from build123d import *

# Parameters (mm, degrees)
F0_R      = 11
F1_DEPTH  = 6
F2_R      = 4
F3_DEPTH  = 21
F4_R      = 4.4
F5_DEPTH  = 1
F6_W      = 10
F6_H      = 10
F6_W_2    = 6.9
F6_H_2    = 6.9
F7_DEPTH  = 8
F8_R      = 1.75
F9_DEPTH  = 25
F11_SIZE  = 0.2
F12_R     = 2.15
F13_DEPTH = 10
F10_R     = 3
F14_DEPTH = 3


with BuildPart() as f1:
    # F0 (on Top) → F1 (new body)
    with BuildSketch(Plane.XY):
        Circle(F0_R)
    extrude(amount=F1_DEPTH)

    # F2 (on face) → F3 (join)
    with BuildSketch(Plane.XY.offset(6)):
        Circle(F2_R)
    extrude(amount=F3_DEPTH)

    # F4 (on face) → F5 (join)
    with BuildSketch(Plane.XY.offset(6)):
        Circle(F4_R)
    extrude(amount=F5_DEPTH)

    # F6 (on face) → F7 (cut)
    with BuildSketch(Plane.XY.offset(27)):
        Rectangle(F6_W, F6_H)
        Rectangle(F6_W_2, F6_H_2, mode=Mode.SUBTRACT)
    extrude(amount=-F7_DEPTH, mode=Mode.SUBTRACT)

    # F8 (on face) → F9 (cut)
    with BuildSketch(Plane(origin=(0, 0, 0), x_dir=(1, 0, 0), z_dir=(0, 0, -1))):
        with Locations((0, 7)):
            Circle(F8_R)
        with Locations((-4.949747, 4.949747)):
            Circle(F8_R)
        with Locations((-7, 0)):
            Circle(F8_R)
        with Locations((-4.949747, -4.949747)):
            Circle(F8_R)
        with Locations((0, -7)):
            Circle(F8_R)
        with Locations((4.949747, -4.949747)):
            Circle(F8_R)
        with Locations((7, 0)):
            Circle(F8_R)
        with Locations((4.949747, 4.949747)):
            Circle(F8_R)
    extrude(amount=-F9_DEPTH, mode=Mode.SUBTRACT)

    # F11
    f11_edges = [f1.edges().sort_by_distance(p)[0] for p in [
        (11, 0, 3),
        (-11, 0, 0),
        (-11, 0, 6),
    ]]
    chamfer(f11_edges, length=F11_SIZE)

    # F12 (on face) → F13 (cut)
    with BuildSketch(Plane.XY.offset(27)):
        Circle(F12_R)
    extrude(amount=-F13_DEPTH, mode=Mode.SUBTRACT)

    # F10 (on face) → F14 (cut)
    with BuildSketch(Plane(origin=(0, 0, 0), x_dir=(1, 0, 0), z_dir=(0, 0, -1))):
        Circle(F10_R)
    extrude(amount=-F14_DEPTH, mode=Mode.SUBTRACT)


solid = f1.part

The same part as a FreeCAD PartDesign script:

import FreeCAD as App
import Part
import Sketcher

V = App.Vector


def edges_at(feature, points):
    """Names of the edges that pass closest to the given points."""
    edges = feature.Shape.Edges
    near = lambda p: min(range(len(edges)), key=lambda i: edges[i].distToShape(Part.Vertex(*p))[0])
    return sorted({f"Edge{near(p) + 1}" for p in points})


def add_polygon(sketch, points):
    """Adds a closed chain of lines whose ends are joined by coincident constraints."""
    first, n = sketch.GeometryCount, len(points)
    for a, b in zip(points, points[1:] + points[:1]):
        sketch.addGeometry(Part.LineSegment(App.Vector(*a, 0), App.Vector(*b, 0)), False)
    for i in range(n):
        sketch.addConstraint(Sketcher.Constraint("Coincident", first + i, 2, first + (i + 1) % n, 1))

doc = App.newDocument("Part")
params = doc.addObject("Spreadsheet::Sheet", "Params")
for row, (alias, value) in enumerate([
    ("sketch1_diameter", "22 mm"),
    ("pad1_length", "6 mm"),
    ("sketch2_diameter", "8 mm"),
    ("pad2_length", "21 mm"),
    ("sketch3_diameter", "8.8 mm"),
    ("pad3_length", "1 mm"),
    ("sketch4_width", "10 mm"),
    ("sketch4_width2", "6.9 mm"),
    ("pocket1_length", "8 mm"),
    ("sketch5_diameter", "3.5 mm"),
    ("pocket2_length", "25 mm"),
    ("chamfer_size", "0.2 mm"),
    ("sketch6_diameter", "4.3 mm"),
    ("pocket3_length", "10 mm"),
    ("sketch7_diameter", "6 mm"),
    ("pocket4_length", "3 mm"),
], start=1):
    params.set(f"A{row}", alias)
    params.set(f"B{row}", "=" + value)
    params.setAlias(f"B{row}", alias)

body = doc.addObject("PartDesign::Body", "Body")

sketch1 = body.newObject("Sketcher::SketchObject", "Sketch")
sketch1.AttachmentSupport = (doc.getObject("XY_Plane"), [""])
sketch1.MapMode = "FlatFace"
sketch1.addGeometry(Part.Circle(V(0, 0, 0), V(0, 0, 1), 11), False)
sketch1.addConstraint([
    Sketcher.Constraint("Coincident", 0, 3, -1, 1),
    Sketcher.Constraint("Diameter", 0, 22.0),
])
sketch1.setExpression("Constraints[1]", "Params.sketch1_diameter")
pad1 = body.newObject("PartDesign::Pad", "Pad")
pad1.Profile = sketch1
pad1.setExpression("Length", "Params.pad1_length")

sketch2 = body.newObject("Sketcher::SketchObject", "Sketch001")
sketch2.AttachmentSupport = (doc.getObject("XY_Plane"), [""])
sketch2.MapMode = "FlatFace"
sketch2.AttachmentOffset = App.Placement(V(0, 0, 6), App.Rotation())
sketch2.addGeometry(Part.Circle(V(0, 0, 0), V(0, 0, 1), 4), False)
sketch2.addConstraint([
    Sketcher.Constraint("Coincident", 0, 3, -1, 1),
    Sketcher.Constraint("Diameter", 0, 8.0),
])
sketch2.setExpression("Constraints[1]", "Params.sketch2_diameter")
pad2 = body.newObject("PartDesign::Pad", "Pad001")
pad2.Profile = sketch2
pad2.setExpression("Length", "Params.pad2_length")

sketch3 = body.newObject("Sketcher::SketchObject", "Sketch002")
sketch3.AttachmentSupport = (doc.getObject("XY_Plane"), [""])
sketch3.MapMode = "FlatFace"
sketch3.AttachmentOffset = App.Placement(V(0, 0, 6), App.Rotation())
sketch3.addGeometry(Part.Circle(V(0, 0, 0), V(0, 0, 1), 4.4), False)
sketch3.addConstraint([
    Sketcher.Constraint("Coincident", 0, 3, -1, 1),
    Sketcher.Constraint("Diameter", 0, 8.8),
])
sketch3.setExpression("Constraints[1]", "Params.sketch3_diameter")
pad3 = body.newObject("PartDesign::Pad", "Pad002")
pad3.Profile = sketch3
pad3.setExpression("Length", "Params.pad3_length")

sketch4 = body.newObject("Sketcher::SketchObject", "Sketch003")
sketch4.AttachmentSupport = (doc.getObject("XY_Plane"), [""])
sketch4.MapMode = "FlatFace"
sketch4.AttachmentOffset = App.Placement(V(0, 0, 27), App.Rotation())
add_polygon(sketch4, [(-5, 5), (-5, -5), (5, -5), (5, 5)])
add_polygon(sketch4, [(3.45, -3.45), (-3.45, -3.45), (-3.45, 3.45), (3.45, 3.45)])
sketch4.addConstraint([
    Sketcher.Constraint("Vertical", 0),
    Sketcher.Constraint("Horizontal", 1),
    Sketcher.Constraint("Vertical", 2),
    Sketcher.Constraint("Horizontal", 3),
    Sketcher.Constraint("Horizontal", 4),
    Sketcher.Constraint("Vertical", 5),
    Sketcher.Constraint("Horizontal", 6),
    Sketcher.Constraint("Vertical", 7),
    Sketcher.Constraint("Symmetric", 0, 2, 2, 2, -1, 1),
    Sketcher.Constraint("Symmetric", 4, 2, 6, 2, -1, 1),
    Sketcher.Constraint("Equal", 3, 0),
    Sketcher.Constraint("Equal", 6, 5),
    Sketcher.Constraint("DistanceX", 1, 1, 1, 2, 10.0),
    Sketcher.Constraint("DistanceX", 4, 2, 4, 1, 6.9),
])
sketch4.setExpression("Constraints[20]", "Params.sketch4_width")
sketch4.setExpression("Constraints[21]", "Params.sketch4_width2")
pocket1 = body.newObject("PartDesign::Pocket", "Pocket")
pocket1.Profile = sketch4
pocket1.setExpression("Length", "Params.pocket1_length")

sketch5 = body.newObject("Sketcher::SketchObject", "Sketch004")
sketch5.AttachmentSupport = (doc.getObject("XY_Plane"), [""])
sketch5.MapMode = "FlatFace"
sketch5.addGeometry([
    Part.Circle(V(0, -7, 0), V(0, 0, 1), 1.75),
    Part.Circle(V(-4.949747, -4.949747, 0), V(0, 0, 1), 1.75),
    Part.Circle(V(-7, 0, 0), V(0, 0, 1), 1.75),
    Part.Circle(V(-4.949747, 4.949747, 0), V(0, 0, 1), 1.75),
    Part.Circle(V(0, 7, 0), V(0, 0, 1), 1.75),
    Part.Circle(V(4.949747, 4.949747, 0), V(0, 0, 1), 1.75),
    Part.Circle(V(7, 0, 0), V(0, 0, 1), 1.75),
    Part.Circle(V(4.949747, -4.949747, 0), V(0, 0, 1), 1.75),
], False)
sketch5.addConstraint([
    Sketcher.Constraint("Equal", 0, 1),
    Sketcher.Constraint("Equal", 1, 2),
    Sketcher.Constraint("Equal", 2, 3),
    Sketcher.Constraint("Equal", 3, 4),
    Sketcher.Constraint("Equal", 4, 5),
    Sketcher.Constraint("Equal", 5, 6),
    Sketcher.Constraint("Equal", 6, 7),
    Sketcher.Constraint("Symmetric", 0, 3, 4, 3, -1, 1),
    Sketcher.Constraint("Symmetric", 1, 3, 5, 3, -1, 1),
    Sketcher.Constraint("Symmetric", 2, 3, 6, 3, -1, 1),
    Sketcher.Constraint("Symmetric", 3, 3, 7, 3, -1, 1),
    Sketcher.Constraint("Symmetric", 3, 3, 5, 3, -2),
    Sketcher.Constraint("PointOnObject", 0, 3, -2),
    Sketcher.Constraint("PointOnObject", 2, 3, -1),
    Sketcher.Constraint("Diameter", 0, 3.5),
    Sketcher.Constraint("DistanceY", 0, 3, -1, 1, 7.0),
    Sketcher.Constraint("DistanceX", 2, 3, -1, 1, 7.0),
    Sketcher.Constraint("DistanceX", 1, 3, -1, 1, 4.949747),
    Sketcher.Constraint("DistanceY", 1, 3, -1, 1, 4.949747),
])
sketch5.setExpression("Constraints[14]", "Params.sketch5_diameter")
pocket2 = body.newObject("PartDesign::Pocket", "Pocket001")
pocket2.Profile = sketch5
pocket2.setExpression("Length", "Params.pocket2_length")
pocket2.Reversed = True
doc.recompute()

chamfer = body.newObject("PartDesign::Chamfer", "Chamfer")
chamfer.Base = (pocket2, edges_at(pocket2, [(11, 0, 3), (-11, 0, 0), (-11, 0, 6)]))
chamfer.setExpression("Size", "Params.chamfer_size")

sketch6 = body.newObject("Sketcher::SketchObject", "Sketch005")
sketch6.AttachmentSupport = (doc.getObject("XY_Plane"), [""])
sketch6.MapMode = "FlatFace"
sketch6.AttachmentOffset = App.Placement(V(0, 0, 27), App.Rotation())
sketch6.addGeometry(Part.Circle(V(0, 0, 0), V(0, 0, 1), 2.15), False)
sketch6.addConstraint([
    Sketcher.Constraint("Coincident", 0, 3, -1, 1),
    Sketcher.Constraint("Diameter", 0, 4.3),
])
sketch6.setExpression("Constraints[1]", "Params.sketch6_diameter")
pocket3 = body.newObject("PartDesign::Pocket", "Pocket002")
pocket3.Profile = sketch6
pocket3.setExpression("Length", "Params.pocket3_length")

sketch7 = body.newObject("Sketcher::SketchObject", "Sketch006")
sketch7.AttachmentSupport = (doc.getObject("XY_Plane"), [""])
sketch7.MapMode = "FlatFace"
sketch7.addGeometry(Part.Circle(V(0, 0, 0), V(0, 0, 1), 3), False)
sketch7.addConstraint([
    Sketcher.Constraint("Coincident", 0, 3, -1, 1),
    Sketcher.Constraint("Diameter", 0, 6.0),
])
sketch7.setExpression("Constraints[1]", "Params.sketch7_diameter")
pocket4 = body.newObject("PartDesign::Pocket", "Pocket003")
pocket4.Profile = sketch7
pocket4.setExpression("Length", "Params.pocket4_length")
pocket4.Reversed = True

doc.recompute()
